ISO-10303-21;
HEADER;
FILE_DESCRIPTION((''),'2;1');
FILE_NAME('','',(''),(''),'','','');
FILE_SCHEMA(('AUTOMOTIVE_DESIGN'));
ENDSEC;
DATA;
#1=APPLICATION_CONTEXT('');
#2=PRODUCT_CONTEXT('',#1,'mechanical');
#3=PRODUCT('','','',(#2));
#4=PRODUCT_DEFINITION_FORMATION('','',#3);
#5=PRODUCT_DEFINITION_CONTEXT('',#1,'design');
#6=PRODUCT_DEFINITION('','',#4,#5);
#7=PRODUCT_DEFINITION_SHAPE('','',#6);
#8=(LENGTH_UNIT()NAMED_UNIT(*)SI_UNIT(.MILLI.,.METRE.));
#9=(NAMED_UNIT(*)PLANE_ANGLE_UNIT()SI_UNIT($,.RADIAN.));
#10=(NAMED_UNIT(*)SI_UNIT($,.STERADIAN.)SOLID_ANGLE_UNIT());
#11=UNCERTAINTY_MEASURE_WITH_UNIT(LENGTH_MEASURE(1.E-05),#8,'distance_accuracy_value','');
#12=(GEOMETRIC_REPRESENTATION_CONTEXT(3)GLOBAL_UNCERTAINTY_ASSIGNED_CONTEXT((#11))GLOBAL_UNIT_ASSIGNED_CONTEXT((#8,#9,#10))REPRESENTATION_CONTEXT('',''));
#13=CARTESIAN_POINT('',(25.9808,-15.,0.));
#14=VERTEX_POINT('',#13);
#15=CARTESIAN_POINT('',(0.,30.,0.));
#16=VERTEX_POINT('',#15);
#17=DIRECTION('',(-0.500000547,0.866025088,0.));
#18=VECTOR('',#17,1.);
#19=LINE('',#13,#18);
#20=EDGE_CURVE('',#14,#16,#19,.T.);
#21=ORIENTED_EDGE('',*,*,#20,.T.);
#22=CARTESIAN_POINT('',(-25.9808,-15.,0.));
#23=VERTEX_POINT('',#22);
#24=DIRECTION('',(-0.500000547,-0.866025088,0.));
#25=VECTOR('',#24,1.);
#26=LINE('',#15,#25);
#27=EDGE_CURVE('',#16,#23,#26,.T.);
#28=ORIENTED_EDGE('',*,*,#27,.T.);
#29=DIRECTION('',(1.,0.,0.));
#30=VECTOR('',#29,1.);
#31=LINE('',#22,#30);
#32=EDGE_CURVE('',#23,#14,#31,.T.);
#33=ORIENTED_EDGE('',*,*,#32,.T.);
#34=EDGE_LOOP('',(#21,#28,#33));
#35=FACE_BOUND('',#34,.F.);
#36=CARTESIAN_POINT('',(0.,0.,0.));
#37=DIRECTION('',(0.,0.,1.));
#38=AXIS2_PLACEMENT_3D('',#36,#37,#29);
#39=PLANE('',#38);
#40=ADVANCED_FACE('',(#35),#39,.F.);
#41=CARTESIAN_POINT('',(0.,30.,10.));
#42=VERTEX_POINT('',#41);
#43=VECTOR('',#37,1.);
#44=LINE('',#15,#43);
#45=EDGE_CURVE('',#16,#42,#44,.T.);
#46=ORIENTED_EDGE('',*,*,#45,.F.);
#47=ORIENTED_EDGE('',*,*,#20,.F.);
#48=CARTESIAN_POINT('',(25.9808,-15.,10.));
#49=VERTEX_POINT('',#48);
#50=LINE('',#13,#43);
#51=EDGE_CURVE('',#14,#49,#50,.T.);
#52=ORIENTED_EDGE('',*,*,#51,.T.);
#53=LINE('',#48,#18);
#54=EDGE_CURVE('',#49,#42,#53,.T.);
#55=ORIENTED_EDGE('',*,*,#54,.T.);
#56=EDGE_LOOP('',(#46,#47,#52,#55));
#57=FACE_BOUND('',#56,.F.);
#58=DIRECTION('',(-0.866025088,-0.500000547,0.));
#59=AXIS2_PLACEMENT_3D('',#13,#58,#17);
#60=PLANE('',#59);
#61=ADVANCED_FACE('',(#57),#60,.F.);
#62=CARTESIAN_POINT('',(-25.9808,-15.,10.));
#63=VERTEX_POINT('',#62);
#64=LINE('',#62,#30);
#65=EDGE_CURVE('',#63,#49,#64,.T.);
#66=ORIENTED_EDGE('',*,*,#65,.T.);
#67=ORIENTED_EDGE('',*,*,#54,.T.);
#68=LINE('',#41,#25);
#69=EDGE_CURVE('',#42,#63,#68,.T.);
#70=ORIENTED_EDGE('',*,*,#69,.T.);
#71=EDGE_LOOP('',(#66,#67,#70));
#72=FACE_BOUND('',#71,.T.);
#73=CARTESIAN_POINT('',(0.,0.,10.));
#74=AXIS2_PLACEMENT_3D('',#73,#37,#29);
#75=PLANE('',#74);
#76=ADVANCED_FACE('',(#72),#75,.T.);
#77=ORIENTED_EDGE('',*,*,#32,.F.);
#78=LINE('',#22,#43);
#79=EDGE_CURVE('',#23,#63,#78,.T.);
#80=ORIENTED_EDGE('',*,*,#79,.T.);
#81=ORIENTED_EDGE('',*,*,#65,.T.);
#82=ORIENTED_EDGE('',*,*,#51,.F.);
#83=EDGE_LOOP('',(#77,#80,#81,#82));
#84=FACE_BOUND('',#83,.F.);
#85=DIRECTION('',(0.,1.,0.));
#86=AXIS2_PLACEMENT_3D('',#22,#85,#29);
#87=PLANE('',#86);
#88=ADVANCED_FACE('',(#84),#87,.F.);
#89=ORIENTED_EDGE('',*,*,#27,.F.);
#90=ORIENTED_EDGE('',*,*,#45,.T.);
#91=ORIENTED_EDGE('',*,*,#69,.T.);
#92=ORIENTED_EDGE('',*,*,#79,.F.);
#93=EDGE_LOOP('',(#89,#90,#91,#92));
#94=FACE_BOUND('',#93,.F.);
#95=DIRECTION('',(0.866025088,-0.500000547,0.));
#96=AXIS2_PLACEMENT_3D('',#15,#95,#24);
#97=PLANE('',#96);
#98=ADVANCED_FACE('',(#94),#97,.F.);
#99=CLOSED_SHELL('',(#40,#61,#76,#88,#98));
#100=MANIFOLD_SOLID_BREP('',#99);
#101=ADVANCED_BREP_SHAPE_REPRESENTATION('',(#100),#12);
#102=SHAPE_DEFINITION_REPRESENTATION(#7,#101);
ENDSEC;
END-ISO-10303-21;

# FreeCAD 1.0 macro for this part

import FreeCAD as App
import Part
import Sketcher
from FreeCAD import Vector
Q = App.Units.Quantity

doc = App.newDocument("Part")
body = doc.addObject("PartDesign::Body", "Body")

# Sketch on XY plane
sketch1 = body.newObject("Sketcher::SketchObject", "Sketch")
sketch1.AttachmentSupport = (doc.getObject("XY_Plane"), [""])
sketch1.MapMode = "FlatFace"
sketch1.addGeometry(Part.LineSegment(Vector(26, -15, 0), Vector(0, 30, 0)), False)
sketch1.addGeometry(Part.LineSegment(Vector(0, 30, 0), Vector(-26, -15, 0)), False)
sketch1.addGeometry(Part.LineSegment(Vector(-26, -15, 0), Vector(26, -15, 0)), False)
sketch1.addConstraint(Sketcher.Constraint("Coincident", 0, 2, 1, 1))
sketch1.addConstraint(Sketcher.Constraint("Coincident", 1, 2, 2, 1))
sketch1.addConstraint(Sketcher.Constraint("Coincident", 2, 2, 0, 1))
sketch1.addConstraint(Sketcher.Constraint("Horizontal", 2))
sketch1.addConstraint(Sketcher.Constraint("PointOnObject", 0, 2, -2))
sketch1.addConstraint(Sketcher.Constraint("Equal", 0, 1))
sketch1.addConstraint(Sketcher.Constraint("DistanceY", -1, 1, 0, 2, 30.0))
sketch1.addConstraint(Sketcher.Constraint("Angle", 0, Q("120 deg")))
sketch1.addConstraint(Sketcher.Constraint("DistanceY", 1, 2, -1, 1, 15.0))
pad1 = body.newObject("PartDesign::Pad", "Pad")
pad1.Profile = sketch1
pad1.Length = 10

doc.recompute()
